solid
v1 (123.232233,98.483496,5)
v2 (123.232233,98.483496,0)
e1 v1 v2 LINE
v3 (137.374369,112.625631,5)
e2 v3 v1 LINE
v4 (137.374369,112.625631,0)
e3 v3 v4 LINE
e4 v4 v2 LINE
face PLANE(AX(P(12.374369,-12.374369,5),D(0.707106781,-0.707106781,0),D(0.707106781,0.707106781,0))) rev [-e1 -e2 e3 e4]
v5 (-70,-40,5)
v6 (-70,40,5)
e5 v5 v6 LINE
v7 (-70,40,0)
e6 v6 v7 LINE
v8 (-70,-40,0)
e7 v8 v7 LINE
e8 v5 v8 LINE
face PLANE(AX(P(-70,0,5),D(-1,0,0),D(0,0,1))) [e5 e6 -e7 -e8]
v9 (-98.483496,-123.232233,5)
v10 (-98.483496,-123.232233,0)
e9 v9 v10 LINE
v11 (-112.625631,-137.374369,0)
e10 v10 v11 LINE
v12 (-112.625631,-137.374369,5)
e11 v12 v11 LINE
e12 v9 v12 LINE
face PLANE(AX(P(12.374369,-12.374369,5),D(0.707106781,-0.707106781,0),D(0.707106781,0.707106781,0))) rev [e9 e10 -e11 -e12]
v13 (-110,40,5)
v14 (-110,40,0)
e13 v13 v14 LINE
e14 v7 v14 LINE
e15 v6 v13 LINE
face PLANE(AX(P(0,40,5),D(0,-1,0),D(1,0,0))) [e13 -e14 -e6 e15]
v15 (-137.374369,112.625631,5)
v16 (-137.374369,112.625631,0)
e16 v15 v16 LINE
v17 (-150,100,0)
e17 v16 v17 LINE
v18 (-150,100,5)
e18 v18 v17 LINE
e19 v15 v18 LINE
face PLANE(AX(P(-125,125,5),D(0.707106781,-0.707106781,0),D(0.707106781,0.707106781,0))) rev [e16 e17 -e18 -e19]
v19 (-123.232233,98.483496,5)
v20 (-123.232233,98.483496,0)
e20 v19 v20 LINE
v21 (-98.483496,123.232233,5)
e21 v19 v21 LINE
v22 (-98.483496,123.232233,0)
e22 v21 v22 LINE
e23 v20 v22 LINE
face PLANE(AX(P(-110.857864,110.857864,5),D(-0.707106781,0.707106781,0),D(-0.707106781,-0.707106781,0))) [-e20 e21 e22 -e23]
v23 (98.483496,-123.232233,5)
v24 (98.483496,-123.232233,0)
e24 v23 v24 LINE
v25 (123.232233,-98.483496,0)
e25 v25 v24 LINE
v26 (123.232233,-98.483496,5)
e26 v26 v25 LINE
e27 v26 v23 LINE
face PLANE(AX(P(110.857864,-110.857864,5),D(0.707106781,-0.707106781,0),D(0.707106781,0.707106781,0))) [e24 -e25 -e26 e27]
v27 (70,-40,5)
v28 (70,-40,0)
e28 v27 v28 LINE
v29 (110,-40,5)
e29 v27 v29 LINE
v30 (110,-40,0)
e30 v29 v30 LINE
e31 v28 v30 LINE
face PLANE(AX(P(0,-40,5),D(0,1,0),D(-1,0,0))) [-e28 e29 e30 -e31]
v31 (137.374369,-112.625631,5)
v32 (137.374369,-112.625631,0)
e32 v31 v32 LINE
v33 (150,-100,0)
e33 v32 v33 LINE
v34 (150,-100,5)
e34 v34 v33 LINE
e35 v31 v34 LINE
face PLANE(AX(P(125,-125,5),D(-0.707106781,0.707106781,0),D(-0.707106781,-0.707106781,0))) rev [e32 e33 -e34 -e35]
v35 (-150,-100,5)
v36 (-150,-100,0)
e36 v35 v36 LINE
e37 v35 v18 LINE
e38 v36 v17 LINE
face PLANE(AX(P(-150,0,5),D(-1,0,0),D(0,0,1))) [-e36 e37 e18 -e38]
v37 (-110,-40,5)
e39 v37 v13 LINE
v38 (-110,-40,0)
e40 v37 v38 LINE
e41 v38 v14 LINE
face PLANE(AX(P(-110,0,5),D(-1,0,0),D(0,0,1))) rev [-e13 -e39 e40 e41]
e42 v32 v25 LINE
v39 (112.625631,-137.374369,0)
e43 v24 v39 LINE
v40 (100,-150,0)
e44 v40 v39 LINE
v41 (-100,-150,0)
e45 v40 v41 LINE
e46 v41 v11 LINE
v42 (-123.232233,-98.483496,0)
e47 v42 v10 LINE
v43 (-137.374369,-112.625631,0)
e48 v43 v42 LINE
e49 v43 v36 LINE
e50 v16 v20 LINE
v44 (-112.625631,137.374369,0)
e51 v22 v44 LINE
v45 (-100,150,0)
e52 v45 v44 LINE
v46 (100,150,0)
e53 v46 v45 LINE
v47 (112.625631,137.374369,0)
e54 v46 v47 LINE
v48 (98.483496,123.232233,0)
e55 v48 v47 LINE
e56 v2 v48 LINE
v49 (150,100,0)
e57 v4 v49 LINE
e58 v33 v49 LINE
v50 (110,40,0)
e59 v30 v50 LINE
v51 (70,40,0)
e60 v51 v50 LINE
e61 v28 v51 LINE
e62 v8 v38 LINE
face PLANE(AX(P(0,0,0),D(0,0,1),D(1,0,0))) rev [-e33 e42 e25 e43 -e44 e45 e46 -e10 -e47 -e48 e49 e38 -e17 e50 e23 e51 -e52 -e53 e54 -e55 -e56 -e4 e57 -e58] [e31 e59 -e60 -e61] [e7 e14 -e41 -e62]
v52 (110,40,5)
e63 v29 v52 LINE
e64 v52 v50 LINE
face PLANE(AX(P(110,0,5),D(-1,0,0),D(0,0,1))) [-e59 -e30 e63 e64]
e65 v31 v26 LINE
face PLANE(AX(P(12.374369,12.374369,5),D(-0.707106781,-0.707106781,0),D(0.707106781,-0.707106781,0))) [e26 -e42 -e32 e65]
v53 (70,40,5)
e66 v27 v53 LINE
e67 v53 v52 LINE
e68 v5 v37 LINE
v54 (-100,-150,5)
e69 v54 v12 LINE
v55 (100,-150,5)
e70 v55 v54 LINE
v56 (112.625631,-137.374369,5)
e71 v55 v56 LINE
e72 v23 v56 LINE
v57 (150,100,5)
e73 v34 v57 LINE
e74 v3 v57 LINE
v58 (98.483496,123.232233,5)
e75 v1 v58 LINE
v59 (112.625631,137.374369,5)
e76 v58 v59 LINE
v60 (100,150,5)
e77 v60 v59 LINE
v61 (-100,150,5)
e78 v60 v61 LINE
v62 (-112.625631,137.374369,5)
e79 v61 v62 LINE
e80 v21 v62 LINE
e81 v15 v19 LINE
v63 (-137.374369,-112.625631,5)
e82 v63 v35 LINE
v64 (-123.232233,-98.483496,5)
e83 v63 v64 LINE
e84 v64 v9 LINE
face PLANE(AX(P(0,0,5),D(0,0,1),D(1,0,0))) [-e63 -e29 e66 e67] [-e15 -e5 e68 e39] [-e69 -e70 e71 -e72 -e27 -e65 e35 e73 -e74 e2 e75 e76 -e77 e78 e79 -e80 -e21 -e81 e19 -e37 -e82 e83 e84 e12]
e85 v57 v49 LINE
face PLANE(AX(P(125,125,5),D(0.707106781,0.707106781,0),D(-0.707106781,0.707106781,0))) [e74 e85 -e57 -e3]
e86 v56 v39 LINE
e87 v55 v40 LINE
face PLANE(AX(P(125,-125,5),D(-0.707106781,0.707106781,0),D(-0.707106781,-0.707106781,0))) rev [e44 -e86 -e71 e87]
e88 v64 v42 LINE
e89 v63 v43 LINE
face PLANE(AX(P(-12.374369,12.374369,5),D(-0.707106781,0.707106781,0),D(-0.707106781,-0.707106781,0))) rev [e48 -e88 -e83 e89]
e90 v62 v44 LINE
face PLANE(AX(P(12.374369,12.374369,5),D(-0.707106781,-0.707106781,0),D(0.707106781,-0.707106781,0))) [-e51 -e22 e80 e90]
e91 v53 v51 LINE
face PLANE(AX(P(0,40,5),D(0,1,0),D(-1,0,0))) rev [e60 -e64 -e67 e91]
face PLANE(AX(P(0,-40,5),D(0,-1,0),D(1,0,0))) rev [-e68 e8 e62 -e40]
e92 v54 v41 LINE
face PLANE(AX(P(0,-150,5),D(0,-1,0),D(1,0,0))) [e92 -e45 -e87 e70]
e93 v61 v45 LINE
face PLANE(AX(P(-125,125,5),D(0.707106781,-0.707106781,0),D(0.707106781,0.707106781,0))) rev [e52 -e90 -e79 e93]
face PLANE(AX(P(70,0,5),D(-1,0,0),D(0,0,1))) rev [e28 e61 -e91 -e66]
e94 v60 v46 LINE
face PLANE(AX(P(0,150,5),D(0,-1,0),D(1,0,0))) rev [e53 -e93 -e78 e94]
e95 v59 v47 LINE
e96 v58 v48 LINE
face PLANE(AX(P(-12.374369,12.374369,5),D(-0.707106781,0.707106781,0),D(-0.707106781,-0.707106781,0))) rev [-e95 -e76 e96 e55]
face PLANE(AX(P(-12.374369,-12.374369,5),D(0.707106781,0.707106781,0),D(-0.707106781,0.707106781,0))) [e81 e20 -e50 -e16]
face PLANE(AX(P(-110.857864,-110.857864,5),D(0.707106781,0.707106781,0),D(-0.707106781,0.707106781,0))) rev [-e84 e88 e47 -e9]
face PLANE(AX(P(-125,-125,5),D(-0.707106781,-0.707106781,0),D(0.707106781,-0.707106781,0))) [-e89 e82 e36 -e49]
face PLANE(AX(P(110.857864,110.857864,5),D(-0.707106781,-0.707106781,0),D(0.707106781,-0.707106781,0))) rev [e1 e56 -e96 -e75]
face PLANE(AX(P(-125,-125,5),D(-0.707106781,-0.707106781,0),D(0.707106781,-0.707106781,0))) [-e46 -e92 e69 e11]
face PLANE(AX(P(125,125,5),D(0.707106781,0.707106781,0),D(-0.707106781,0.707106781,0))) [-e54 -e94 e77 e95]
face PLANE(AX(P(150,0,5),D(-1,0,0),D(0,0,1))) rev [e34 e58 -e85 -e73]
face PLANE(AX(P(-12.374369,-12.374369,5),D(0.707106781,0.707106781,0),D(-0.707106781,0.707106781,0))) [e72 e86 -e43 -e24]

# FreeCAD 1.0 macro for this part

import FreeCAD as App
import Part
import Sketcher
Q = App.Units.Quantity

doc = App.newDocument("Part")
body = doc.addObject("PartDesign::Body", "Body")

# Sketch on XY plane
sketch1 = doc.addObject("Sketcher::SketchObject", "Sketch")
body.addObject(sketch1)
sketch1.AttachmentSupport = (doc.XY_Plane, [""])
sketch1.MapMode = "FlatFace"
sketch1.addGeometry([
    Part.LineSegment(App.Vector(113, 137, 0), App.Vector(100, 150, 0)),  # 0
    Part.LineSegment(App.Vector(100, 150, 0), App.Vector(-100, 150, 0)),  # 1
    Part.LineSegment(App.Vector(-100, 150, 0), App.Vector(-113, 137, 0)),  # 2
    Part.LineSegment(App.Vector(-113, 137, 0), App.Vector(-98, 123, 0)),  # 3
    Part.LineSegment(App.Vector(-98, 123, 0), App.Vector(-123, 98, 0)),  # 4
    Part.LineSegment(App.Vector(-123, 98, 0), App.Vector(-137, 113, 0)),  # 5
    Part.LineSegment(App.Vector(-137, 113, 0), App.Vector(-150, 100, 0)),  # 6
    Part.LineSegment(App.Vector(-150, 100, 0), App.Vector(-150, -100, 0)),  # 7
    Part.LineSegment(App.Vector(-150, -100, 0), App.Vector(-137, -113, 0)),  # 8
    Part.LineSegment(App.Vector(-137, -113, 0), App.Vector(-123, -98, 0)),  # 9
    Part.LineSegment(App.Vector(-123, -98, 0), App.Vector(-98, -123, 0)),  # 10
    Part.LineSegment(App.Vector(-98, -123, 0), App.Vector(-113, -137, 0)),  # 11
    Part.LineSegment(App.Vector(-113, -137, 0), App.Vector(-100, -150, 0)),  # 12
    Part.LineSegment(App.Vector(-100, -150, 0), App.Vector(100, -150, 0)),  # 13
    Part.LineSegment(App.Vector(100, -150, 0), App.Vector(113, -137, 0)),  # 14
    Part.LineSegment(App.Vector(113, -137, 0), App.Vector(98, -123, 0)),  # 15
    Part.LineSegment(App.Vector(98, -123, 0), App.Vector(123, -98, 0)),  # 16
    Part.LineSegment(App.Vector(123, -98, 0), App.Vector(137, -113, 0)),  # 17
    Part.LineSegment(App.Vector(137, -113, 0), App.Vector(150, -100, 0)),  # 18
    Part.LineSegment(App.Vector(150, -100, 0), App.Vector(150, 100, 0)),  # 19
    Part.LineSegment(App.Vector(150, 100, 0), App.Vector(137, 113, 0)),  # 20
    Part.LineSegment(App.Vector(137, 113, 0), App.Vector(123, 98, 0)),  # 21
    Part.LineSegment(App.Vector(123, 98, 0), App.Vector(98, 123, 0)),  # 22
    Part.LineSegment(App.Vector(98, 123, 0), App.Vector(113, 137, 0)),  # 23
    Part.LineSegment(App.Vector(-70, -40, 0), App.Vector(-110, -40, 0)),  # 24
    Part.LineSegment(App.Vector(-110, -40, 0), App.Vector(-110, 40, 0)),  # 25
    Part.LineSegment(App.Vector(-110, 40, 0), App.Vector(-70, 40, 0)),  # 26
    Part.LineSegment(App.Vector(-70, 40, 0), App.Vector(-70, -40, 0)),  # 27
    Part.LineSegment(App.Vector(110, -40, 0), App.Vector(70, -40, 0)),  # 28
    Part.LineSegment(App.Vector(70, -40, 0), App.Vector(70, 40, 0)),  # 29
    Part.LineSegment(App.Vector(70, 40, 0), App.Vector(110, 40, 0)),  # 30
    Part.LineSegment(App.Vector(110, 40, 0), App.Vector(110, -40, 0)),  # 31
], False)
sketch1.addConstraint([
    Sketcher.Constraint("Coincident", 0, 2, 1, 1),
    Sketcher.Constraint("Coincident", 1, 2, 2, 1),
    Sketcher.Constraint("Coincident", 2, 2, 3, 1),
    Sketcher.Constraint("Coincident", 3, 2, 4, 1),
    Sketcher.Constraint("Coincident", 4, 2, 5, 1),
    Sketcher.Constraint("Coincident", 5, 2, 6, 1),
    Sketcher.Constraint("Coincident", 6, 2, 7, 1),
    Sketcher.Constraint("Coincident", 7, 2, 8, 1),
    Sketcher.Constraint("Coincident", 8, 2, 9, 1),
    Sketcher.Constraint("Coincident", 9, 2, 10, 1),
    Sketcher.Constraint("Coincident", 10, 2, 11, 1),
    Sketcher.Constraint("Coincident", 11, 2, 12, 1),
    Sketcher.Constraint("Coincident", 12, 2, 13, 1),
    Sketcher.Constraint("Coincident", 13, 2, 14, 1),
    Sketcher.Constraint("Coincident", 14, 2, 15, 1),
    Sketcher.Constraint("Coincident", 15, 2, 16, 1),
    Sketcher.Constraint("Coincident", 16, 2, 17, 1),
    Sketcher.Constraint("Coincident", 17, 2, 18, 1),
    Sketcher.Constraint("Coincident", 18, 2, 19, 1),
    Sketcher.Constraint("Coincident", 19, 2, 20, 1),
    Sketcher.Constraint("Coincident", 20, 2, 21, 1),
    Sketcher.Constraint("Coincident", 21, 2, 22, 1),
    Sketcher.Constraint("Coincident", 22, 2, 23, 1),
    Sketcher.Constraint("Coincident", 23, 2, 0, 1),
    Sketcher.Constraint("Coincident", 24, 2, 25, 1),
    Sketcher.Constraint("Coincident", 25, 2, 26, 1),
    Sketcher.Constraint("Coincident", 26, 2, 27, 1),
    Sketcher.Constraint("Coincident", 27, 2, 24, 1),
    Sketcher.Constraint("Coincident", 28, 2, 29, 1),
    Sketcher.Constraint("Coincident", 29, 2, 30, 1),
    Sketcher.Constraint("Coincident", 30, 2, 31, 1),
    Sketcher.Constraint("Coincident", 31, 2, 28, 1),
    Sketcher.Constraint("Horizontal", 1),
    Sketcher.Constraint("Vertical", 7),
    Sketcher.Constraint("Horizontal", 13),
    Sketcher.Constraint("Vertical", 19),
    Sketcher.Constraint("Horizontal", 24),
    Sketcher.Constraint("Vertical", 25),
    Sketcher.Constraint("Horizontal", 26),
    Sketcher.Constraint("Vertical", 27),
    Sketcher.Constraint("Horizontal", 28),
    Sketcher.Constraint("Vertical", 29),
    Sketcher.Constraint("Horizontal", 30),
    Sketcher.Constraint("Vertical", 31),
    Sketcher.Constraint("Symmetric", 0, 2, 12, 2, -1, 1),
    Sketcher.Constraint("Symmetric", 2, 2, 14, 2, -1, 1),
    Sketcher.Constraint("Symmetric", 3, 2, 15, 2, -1, 1),
    Sketcher.Constraint("Symmetric", 4, 2, 16, 2, -1, 1),
    Sketcher.Constraint("Symmetric", 5, 2, 17, 2, -1, 1),
    Sketcher.Constraint("Symmetric", 6, 2, 18, 2, -1, 1),
    Sketcher.Constraint("Symmetric", 8, 2, 20, 2, -1, 1),
    Sketcher.Constraint("Symmetric", 9, 2, 21, 2, -1, 1),
    Sketcher.Constraint("Symmetric", 10, 2, 22, 2, -1, 1),
    Sketcher.Constraint("Symmetric", 11, 2, 23, 2, -1, 1),
    Sketcher.Constraint("Symmetric", 26, 2, 28, 2, -1, 1),
    Sketcher.Constraint("Symmetric", 24, 2, 30, 2, -1, 1),
    Sketcher.Constraint("Symmetric", 11, 2, 14, 2, -2),
    Sketcher.Constraint("Symmetric", 10, 2, 15, 2, -2),
    Sketcher.Constraint("Symmetric", 9, 2, 16, 2, -2),
    Sketcher.Constraint("Symmetric", 8, 2, 17, 2, -2),
    Sketcher.Constraint("Perpendicular", 0, 2),
    Sketcher.Constraint("Perpendicular", 2, 3),
    Sketcher.Constraint("Perpendicular", 3, 4),
    Sketcher.Constraint("Perpendicular", 4, 5),
    Sketcher.Constraint("Perpendicular", 5, 6),
    Sketcher.Constraint("Perpendicular", 6, 8),
    Sketcher.Constraint("Perpendicular", 8, 9),
    Sketcher.Constraint("Perpendicular", 12, 14),
    Sketcher.Constraint("Perpendicular", 18, 20),
    Sketcher.Constraint("Horizontal", 27, 2, 28, 2),
    Sketcher.Constraint("Equal", 13, 7),
    Sketcher.Constraint("Equal", 3, 5),
    Sketcher.Constraint("Equal", 2, 6),
    Sketcher.Constraint("DistanceX", 1, 2, 1, 1, Q("200 mm")),
    Sketcher.Constraint("DistanceX", 24, 2, 24, 1, Q("40 mm")),
    Sketcher.Constraint("DistanceY", 25, 1, 25, 2, Q("80 mm")),
    Sketcher.Constraint("Distance", 3, Q("20 mm")),
    Sketcher.Constraint("Distance", 4, Q("35 mm")),
    Sketcher.Constraint("DistanceY", -1, 1, 0, 2, Q("150 mm")),
    Sketcher.Constraint("DistanceX", 24, 2, -1, 1, Q("110 mm")),
])
pad1 = doc.addObject("PartDesign::Pad", "Pad")
body.addObject(pad1)
pad1.Profile = sketch1
pad1.Length = 5

doc.recompute()
